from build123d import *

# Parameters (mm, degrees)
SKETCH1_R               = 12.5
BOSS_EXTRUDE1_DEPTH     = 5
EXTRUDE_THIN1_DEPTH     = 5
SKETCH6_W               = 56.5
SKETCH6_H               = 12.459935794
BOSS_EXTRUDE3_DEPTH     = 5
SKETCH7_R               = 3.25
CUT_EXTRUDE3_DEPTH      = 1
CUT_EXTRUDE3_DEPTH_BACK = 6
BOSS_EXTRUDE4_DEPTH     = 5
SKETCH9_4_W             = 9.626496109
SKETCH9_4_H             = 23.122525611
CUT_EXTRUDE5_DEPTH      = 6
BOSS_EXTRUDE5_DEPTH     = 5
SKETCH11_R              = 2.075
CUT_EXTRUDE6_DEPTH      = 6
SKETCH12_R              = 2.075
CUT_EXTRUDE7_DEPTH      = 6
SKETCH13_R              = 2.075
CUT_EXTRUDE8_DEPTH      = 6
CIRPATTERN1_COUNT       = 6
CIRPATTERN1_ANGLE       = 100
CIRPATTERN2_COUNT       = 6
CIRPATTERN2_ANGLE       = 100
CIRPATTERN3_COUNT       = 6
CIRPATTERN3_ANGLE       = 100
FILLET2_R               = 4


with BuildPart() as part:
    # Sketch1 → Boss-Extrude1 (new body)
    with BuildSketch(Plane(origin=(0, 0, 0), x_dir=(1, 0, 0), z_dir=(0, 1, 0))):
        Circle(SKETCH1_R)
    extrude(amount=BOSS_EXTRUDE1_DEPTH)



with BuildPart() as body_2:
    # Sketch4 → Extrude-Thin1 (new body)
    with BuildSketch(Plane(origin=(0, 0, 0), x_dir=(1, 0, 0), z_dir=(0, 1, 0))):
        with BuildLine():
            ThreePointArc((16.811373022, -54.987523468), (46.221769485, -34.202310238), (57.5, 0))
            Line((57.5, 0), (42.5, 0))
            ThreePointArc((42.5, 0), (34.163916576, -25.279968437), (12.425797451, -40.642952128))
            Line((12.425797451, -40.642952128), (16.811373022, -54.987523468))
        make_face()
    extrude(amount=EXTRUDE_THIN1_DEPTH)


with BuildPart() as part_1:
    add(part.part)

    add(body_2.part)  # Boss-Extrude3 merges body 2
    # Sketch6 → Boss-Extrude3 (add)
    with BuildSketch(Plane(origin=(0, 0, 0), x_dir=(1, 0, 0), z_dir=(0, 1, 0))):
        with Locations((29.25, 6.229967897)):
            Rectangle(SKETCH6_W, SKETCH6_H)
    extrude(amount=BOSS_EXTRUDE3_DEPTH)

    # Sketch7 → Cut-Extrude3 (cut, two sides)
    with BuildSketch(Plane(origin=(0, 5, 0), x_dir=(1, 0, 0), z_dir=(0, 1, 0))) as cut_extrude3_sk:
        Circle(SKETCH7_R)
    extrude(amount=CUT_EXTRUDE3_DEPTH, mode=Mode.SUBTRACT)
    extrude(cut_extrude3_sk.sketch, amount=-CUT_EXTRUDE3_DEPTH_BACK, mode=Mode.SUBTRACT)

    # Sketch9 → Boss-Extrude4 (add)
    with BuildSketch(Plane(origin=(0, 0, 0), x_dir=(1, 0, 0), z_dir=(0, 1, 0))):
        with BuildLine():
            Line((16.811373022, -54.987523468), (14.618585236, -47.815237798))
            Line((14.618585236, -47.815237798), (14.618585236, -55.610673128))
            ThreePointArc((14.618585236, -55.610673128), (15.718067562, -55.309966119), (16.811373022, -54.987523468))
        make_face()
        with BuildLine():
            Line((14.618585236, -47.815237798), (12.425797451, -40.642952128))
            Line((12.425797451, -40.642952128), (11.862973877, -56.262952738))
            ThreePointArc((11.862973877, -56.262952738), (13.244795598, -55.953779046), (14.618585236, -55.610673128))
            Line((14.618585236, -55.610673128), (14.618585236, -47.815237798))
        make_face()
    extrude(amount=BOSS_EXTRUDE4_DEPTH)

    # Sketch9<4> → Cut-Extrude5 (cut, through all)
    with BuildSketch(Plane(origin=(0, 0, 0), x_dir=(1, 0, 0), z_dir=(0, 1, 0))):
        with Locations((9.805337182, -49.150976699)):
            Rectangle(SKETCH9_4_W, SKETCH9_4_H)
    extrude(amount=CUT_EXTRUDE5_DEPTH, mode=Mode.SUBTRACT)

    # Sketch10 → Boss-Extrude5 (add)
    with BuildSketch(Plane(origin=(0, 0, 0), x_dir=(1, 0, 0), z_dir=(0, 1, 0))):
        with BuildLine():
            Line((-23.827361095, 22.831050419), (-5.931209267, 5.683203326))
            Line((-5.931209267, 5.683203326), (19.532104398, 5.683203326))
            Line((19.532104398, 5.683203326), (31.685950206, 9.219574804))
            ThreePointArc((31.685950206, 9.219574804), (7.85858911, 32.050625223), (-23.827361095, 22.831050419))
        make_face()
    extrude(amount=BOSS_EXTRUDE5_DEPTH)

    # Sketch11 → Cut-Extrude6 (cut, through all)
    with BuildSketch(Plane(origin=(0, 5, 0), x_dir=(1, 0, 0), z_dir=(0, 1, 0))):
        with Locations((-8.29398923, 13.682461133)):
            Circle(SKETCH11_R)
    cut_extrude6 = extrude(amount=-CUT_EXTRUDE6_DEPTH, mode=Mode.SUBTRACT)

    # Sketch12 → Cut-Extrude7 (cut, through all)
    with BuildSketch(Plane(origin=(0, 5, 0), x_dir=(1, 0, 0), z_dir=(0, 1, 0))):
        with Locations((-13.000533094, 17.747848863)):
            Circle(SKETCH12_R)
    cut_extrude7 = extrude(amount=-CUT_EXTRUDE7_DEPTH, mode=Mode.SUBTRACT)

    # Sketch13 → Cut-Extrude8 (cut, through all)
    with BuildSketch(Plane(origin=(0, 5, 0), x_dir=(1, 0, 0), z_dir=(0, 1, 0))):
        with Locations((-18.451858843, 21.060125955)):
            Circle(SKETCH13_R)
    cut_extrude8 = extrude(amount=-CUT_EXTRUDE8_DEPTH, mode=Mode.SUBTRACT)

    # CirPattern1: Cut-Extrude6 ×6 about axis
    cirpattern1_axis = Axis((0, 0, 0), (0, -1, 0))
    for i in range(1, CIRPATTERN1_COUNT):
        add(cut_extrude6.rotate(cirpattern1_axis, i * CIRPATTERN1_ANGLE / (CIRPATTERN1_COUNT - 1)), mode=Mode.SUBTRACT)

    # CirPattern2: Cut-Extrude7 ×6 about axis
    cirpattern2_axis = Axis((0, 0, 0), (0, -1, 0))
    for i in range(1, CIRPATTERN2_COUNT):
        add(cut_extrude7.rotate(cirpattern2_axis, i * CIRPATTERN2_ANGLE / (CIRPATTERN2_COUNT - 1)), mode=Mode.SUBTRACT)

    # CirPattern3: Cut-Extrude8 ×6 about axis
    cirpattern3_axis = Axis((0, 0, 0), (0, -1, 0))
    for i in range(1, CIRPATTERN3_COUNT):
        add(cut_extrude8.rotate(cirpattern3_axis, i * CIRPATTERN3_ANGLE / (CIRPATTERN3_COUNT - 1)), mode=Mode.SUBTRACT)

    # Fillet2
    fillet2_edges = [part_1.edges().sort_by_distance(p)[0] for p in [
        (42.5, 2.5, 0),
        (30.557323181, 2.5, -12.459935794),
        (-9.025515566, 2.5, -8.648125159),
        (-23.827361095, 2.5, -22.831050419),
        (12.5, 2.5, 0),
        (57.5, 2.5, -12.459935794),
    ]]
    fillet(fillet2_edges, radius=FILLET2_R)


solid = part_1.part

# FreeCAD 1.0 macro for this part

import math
import FreeCAD as App
import Part
import Sketcher
from FreeCAD import Vector
Q = App.Units.Quantity


def edges_at(feature, points):
    """Names of the edges that pass closest to the given points."""
    edges = feature.Shape.Edges
    near = lambda p: min(range(len(edges)), key=lambda i: edges[i].distToShape(Part.Vertex(*p))[0])
    return sorted({f"Edge{near(p) + 1}" for p in points})


def add_polygon(sketch, points):
    """Adds a closed chain of lines whose ends are joined by coincident constraints."""
    first, n = sketch.GeometryCount, len(points)
    for a, b in zip(points, points[1:] + points[:1]):
        sketch.addGeometry(Part.LineSegment(App.Vector(*a, 0), App.Vector(*b, 0)), False)
    for i in range(n):
        sketch.addConstraint(Sketcher.Constraint("Coincident", first + i, 2, first + (i + 1) % n, 1))

doc = App.newDocument("Part")
params = doc.addObject("Spreadsheet::Sheet", "Params")
for row, (alias, value) in enumerate([
    ("sketch1_diameter", "25 mm"),
    ("pad1_length", "5 mm"),
    ("sketch2_radius", "57.5 mm"),
    ("sketch2_radius2", "42.5 mm"),
    ("pad2_length", "5 mm"),
    ("sketch3_width", "56.5 mm"),
    ("pad3_length", "5 mm"),
    ("sketch4_diameter", "6.5 mm"),
    ("sketch5_radius", "57.500002 mm"),
    ("sketch5_length", "7.5 mm"),
    ("pad4_length", "5 mm"),
    ("sketch7_radius", "33 mm"),
    ("pad5_length", "5 mm"),
    ("sketch8_diameter", "4.15 mm"),
    ("sketch9_diameter", "4.15 mm"),
    ("sketch10_diameter", "4.15 mm"),
    ("fillet_radius", "4 mm"),
], start=1):
    params.set(f"A{row}", alias)
    params.set(f"B{row}", "=" + value)
    params.setAlias(f"B{row}", alias)

body = doc.addObject("PartDesign::Body", "Body")

sketch1 = body.newObject("Sketcher::SketchObject", "Sketch")
sketch1.AttachmentSupport = (doc.getObject("XZ_Plane"), [""])
sketch1.MapMode = "FlatFace"
sketch1.addGeometry(Part.Circle(Vector(0, 0, 0), Vector(0, 0, 1), 12), False)
sketch1.addConstraint(Sketcher.Constraint("Coincident", 0, 3, -1, 1))
sketch1.addConstraint(Sketcher.Constraint("Diameter", 0, 25.0))
sketch1.setExpression("Constraints[1]", "Params.sketch1_diameter")
pad1 = body.newObject("PartDesign::Pad", "Pad")
pad1.Profile = sketch1
pad1.setExpression("Length", "Params.pad1_length")
pad1.Reversed = True
body2 = doc.addObject("PartDesign::Body", "Body001")

sketch2 = body2.newObject("Sketcher::SketchObject", "Sketch001")
sketch2.AttachmentSupport = (doc.getObject("XZ_Plane001"), [""])
sketch2.MapMode = "FlatFace"
sketch2.addGeometry(Part.ArcOfCircle(Part.Circle(Vector(0, 0, 0), Vector(0, 0, 1), 58), math.radians(0), math.radians(73)), False)
sketch2.addGeometry(Part.LineSegment(Vector(58, 0, 0), Vector(42, 0, 0)), False)
sketch2.addGeometry(Part.ArcOfCircle(Part.Circle(Vector(0, 0, 0), Vector(0, 0, 1), 42), math.radians(0), math.radians(73)), False)
sketch2.addGeometry(Part.LineSegment(Vector(12, 41, 0), Vector(17, 55, 0)), False)
sketch2.addConstraint(Sketcher.Constraint("Coincident", 0, 1, 1, 1))
sketch2.addConstraint(Sketcher.Constraint("Coincident", 1, 2, 2, 1))
sketch2.addConstraint(Sketcher.Constraint("Coincident", 2, 2, 3, 1))
sketch2.addConstraint(Sketcher.Constraint("Coincident", 3, 2, 0, 2))
sketch2.addConstraint(Sketcher.Constraint("Horizontal", 1))
sketch2.addConstraint(Sketcher.Constraint("Coincident", 0, 3, -1, 1))
sketch2.addConstraint(Sketcher.Constraint("Coincident", 2, 3, -1, 1))
sketch2.addConstraint(Sketcher.Constraint("PointOnObject", 0, 1, -1))
sketch2.addConstraint(Sketcher.Constraint("Radius", 0, 57.5))
sketch2.addConstraint(Sketcher.Constraint("Radius", 2, 42.5))
sketch2.addConstraint(Sketcher.Constraint("Angle", 3, Q("73 deg")))
sketch2.addConstraint(Sketcher.Constraint("DistanceX", -1, 1, 2, 2, 12.425797))
sketch2.setExpression("Constraints[8]", "Params.sketch2_radius")
sketch2.setExpression("Constraints[9]", "Params.sketch2_radius2")
pad2 = body2.newObject("PartDesign::Pad", "Pad001")
pad2.Profile = sketch2
pad2.setExpression("Length", "Params.pad2_length")
pad2.Reversed = True
body.AllowCompound = True
doc.recompute()

boolean = body.newObject("PartDesign::Boolean", "Boolean")
boolean.Type = "Fuse"
boolean.addObjects([body2])

sketch3 = body.newObject("Sketcher::SketchObject", "Sketch002")
sketch3.AttachmentSupport = (doc.getObject("XZ_Plane"), [""])
sketch3.MapMode = "FlatFace"
add_polygon(sketch3, [(1, -12), (1, 0), (58, 0), (58, -12)])
sketch3.addConstraint(Sketcher.Constraint("Vertical", 0))
sketch3.addConstraint(Sketcher.Constraint("Horizontal", 1))
sketch3.addConstraint(Sketcher.Constraint("Vertical", 2))
sketch3.addConstraint(Sketcher.Constraint("Horizontal", 3))
sketch3.addConstraint(Sketcher.Constraint("PointOnObject", 0, 2, -1))
sketch3.addConstraint(Sketcher.Constraint("DistanceX", 1, 1, 1, 2, 56.5))
sketch3.addConstraint(Sketcher.Constraint("DistanceX", -1, 1, 0, 2, 1.0))
sketch3.addConstraint(Sketcher.Constraint("DistanceY", 0, 1, 0, 2, 12.459936))
sketch3.setExpression("Constraints[9]", "Params.sketch3_width")
pad3 = body.newObject("PartDesign::Pad", "Pad002")
pad3.Profile = sketch3
pad3.setExpression("Length", "Params.pad3_length")
pad3.Reversed = True

sketch4 = body.newObject("Sketcher::SketchObject", "Sketch003")
sketch4.AttachmentSupport = (doc.getObject("XZ_Plane"), [""])
sketch4.MapMode = "FlatFace"
sketch4.AttachmentOffset = App.Placement(Vector(0, 0, -5), App.Rotation())
sketch4.addGeometry(Part.Circle(Vector(0, 0, 0), Vector(0, 0, 1), 3.2), False)
sketch4.addConstraint(Sketcher.Constraint("Coincident", 0, 3, -1, 1))
sketch4.addConstraint(Sketcher.Constraint("Diameter", 0, 6.5))
sketch4.setExpression("Constraints[1]", "Params.sketch4_diameter")
pocket1 = body.newObject("PartDesign::Pocket", "Pocket")
pocket1.Profile = sketch4
pocket1.Type = "ThroughAll"
pocket1.Midplane = True

sketch5 = body.newObject("Sketcher::SketchObject", "Sketch004")
sketch5.AttachmentSupport = (doc.getObject("XZ_Plane"), [""])
sketch5.MapMode = "FlatFace"
sketch5.addGeometry(Part.LineSegment(Vector(16.8, 55, 0), Vector(14.6, 47.8, 0)), False)
sketch5.addGeometry(Part.LineSegment(Vector(14.6, 47.8, 0), Vector(12.4, 40.6, 0)), False)
sketch5.addGeometry(Part.LineSegment(Vector(12.4, 40.6, 0), Vector(11.9, 56.3, 0)), False)
sketch5.addGeometry(Part.ArcOfCircle(Part.Circle(Vector(0, 0, 0), Vector(0, 0, 1), 57.5), math.radians(75.27), math.radians(78.09)), False)
sketch5.addGeometry(Part.ArcOfCircle(Part.Circle(Vector(0, 0, 0), Vector(0, 0, 1), 57.5), math.radians(73), math.radians(75.27)), False)
sketch5.addConstraint(Sketcher.Constraint("Coincident", 0, 2, 1, 1))
sketch5.addConstraint(Sketcher.Constraint("Coincident", 1, 2, 2, 1))
sketch5.addConstraint(Sketcher.Constraint("Coincident", 2, 2, 3, 2))
sketch5.addConstraint(Sketcher.Constraint("Tangent", 3, 1, 4, 2))
sketch5.addConstraint(Sketcher.Constraint("Coincident", 4, 1, 0, 1))
sketch5.addConstraint(Sketcher.Constraint("Coincident", 3, 3, -1, 1))
sketch5.addConstraint(Sketcher.Constraint("Equal", 3, 4))
sketch5.addConstraint(Sketcher.Constraint("Parallel", 0, 1))
sketch5.addConstraint(Sketcher.Constraint("Vertical", 0, 2, 3, 1))
sketch5.addConstraint(Sketcher.Constraint("Equal", 0, 1))
sketch5.addConstraint(Sketcher.Constraint("Radius", 3, 57.500002))
sketch5.addConstraint(Sketcher.Constraint("Angle", 0, Q("-107 deg")))
sketch5.addConstraint(Sketcher.Constraint("Distance", 0, 7.5))
sketch5.addConstraint(Sketcher.Constraint("DistanceY", 1, 2, 2, 2, 15.620001))
sketch5.addConstraint(Sketcher.Constraint("DistanceX", 4, 3, 1, 2, 12.425798))
sketch5.setExpression("Constraints[10]", "Params.sketch5_radius")
sketch5.setExpression("Constraints[12]", "Params.sketch5_length")
pad4 = body.newObject("PartDesign::Pad", "Pad003")
pad4.Profile = sketch5
pad4.setExpression("Length", "Params.pad4_length")
pad4.Reversed = True

sketch6 = body.newObject("Sketcher::SketchObject", "Sketch005")
sketch6.AttachmentSupport = (doc.getObject("XZ_Plane"), [""])
sketch6.MapMode = "FlatFace"
add_polygon(sketch6, [(5, 38), (5, 61), (15, 61), (15, 38)])
sketch6.addConstraint(Sketcher.Constraint("Vertical", 0))
sketch6.addConstraint(Sketcher.Constraint("Horizontal", 1))
sketch6.addConstraint(Sketcher.Constraint("Vertical", 2))
sketch6.addConstraint(Sketcher.Constraint("Horizontal", 3))
sketch6.addConstraint(Sketcher.Constraint("DistanceX", 1, 1, 1, 2, 9.626496))
sketch6.addConstraint(Sketcher.Constraint("DistanceY", 0, 1, 0, 2, 23.122526))
sketch6.addConstraint(Sketcher.Constraint("DistanceX", -1, 1, 0, 2, 4.992089))
sketch6.addConstraint(Sketcher.Constraint("DistanceY", -1, 1, 0, 2, 60.71224))
pocket2 = body.newObject("PartDesign::Pocket", "Pocket001")
pocket2.Profile = sketch6
pocket2.Type = "ThroughAll"

sketch7 = body.newObject("Sketcher::SketchObject", "Sketch006")
sketch7.AttachmentSupport = (doc.getObject("XZ_Plane"), [""])
sketch7.MapMode = "FlatFace"
sketch7.addGeometry(Part.LineSegment(Vector(-24, -23, 0), Vector(-6, -6, 0)), False)
sketch7.addGeometry(Part.LineSegment(Vector(-6, -6, 0), Vector(20, -6, 0)), False)
sketch7.addGeometry(Part.LineSegment(Vector(20, -6, 0), Vector(32, -9, 0)), False)
sketch7.addGeometry(Part.ArcOfCircle(Part.Circle(Vector(0, 0, 0), Vector(0, 0, 1), 33), math.radians(-136), math.radians(-16)), False)
sketch7.addConstraint(Sketcher.Constraint("Coincident", 0, 2, 1, 1))
sketch7.addConstraint(Sketcher.Constraint("Coincident", 1, 2, 2, 1))
sketch7.addConstraint(Sketcher.Constraint("Coincident", 2, 2, 3, 2))
sketch7.addConstraint(Sketcher.Constraint("Coincident", 3, 1, 0, 1))
sketch7.addConstraint(Sketcher.Constraint("Horizontal", 1))
sketch7.addConstraint(Sketcher.Constraint("Coincident", 3, 3, -1, 1))
sketch7.addConstraint(Sketcher.Constraint("Radius", 3, 33.0))
sketch7.addConstraint(Sketcher.Constraint("Distance", 2, 12.657879))
sketch7.addConstraint(Sketcher.Constraint("DistanceX", 1, 1, 1, 2, 25.463314))
sketch7.addConstraint(Sketcher.Constraint("DistanceX", 0, 2, -1, 1, 5.931209))
sketch7.addConstraint(Sketcher.Constraint("DistanceX", -1, 1, 2, 2, 31.68595))
sketch7.addConstraint(Sketcher.Constraint("DistanceX", 3, 1, -1, 1, 23.827361))
sketch7.setExpression("Constraints[6]", "Params.sketch7_radius")
pad5 = body.newObject("PartDesign::Pad", "Pad004")
pad5.Profile = sketch7
pad5.setExpression("Length", "Params.pad5_length")
pad5.Reversed = True

sketch8 = body.newObject("Sketcher::SketchObject", "Sketch007")
sketch8.AttachmentSupport = (doc.getObject("XZ_Plane"), [""])
sketch8.MapMode = "FlatFace"
sketch8.AttachmentOffset = App.Placement(Vector(0, 0, -5), App.Rotation())
sketch8.addGeometry(Part.Circle(Vector(-8.3, -13.7, 0), Vector(0, 0, 1), 2.1), False)
sketch8.addConstraint(Sketcher.Constraint("Diameter", 0, 4.15))
sketch8.addConstraint(Sketcher.Constraint("DistanceX", 0, 3, -1, 1, 8.293989))
sketch8.addConstraint(Sketcher.Constraint("DistanceY", 0, 3, -1, 1, 13.682461))
sketch8.setExpression("Constraints[0]", "Params.sketch8_diameter")
pocket3 = body.newObject("PartDesign::Pocket", "Pocket002")
pocket3.Profile = sketch8
pocket3.Type = "ThroughAll"
pocket3.Reversed = True

sketch9 = body.newObject("Sketcher::SketchObject", "Sketch008")
sketch9.AttachmentSupport = (doc.getObject("XZ_Plane"), [""])
sketch9.MapMode = "FlatFace"
sketch9.AttachmentOffset = App.Placement(Vector(0, 0, -5), App.Rotation())
sketch9.addGeometry(Part.Circle(Vector(-13, -17.7, 0), Vector(0, 0, 1), 2.1), False)
sketch9.addConstraint(Sketcher.Constraint("Diameter", 0, 4.15))
sketch9.addConstraint(Sketcher.Constraint("DistanceY", 0, 3, -1, 1, 17.747849))
sketch9.addConstraint(Sketcher.Constraint("DistanceX", 0, 3, -1, 1, 13.000533))
sketch9.setExpression("Constraints[0]", "Params.sketch9_diameter")
pocket4 = body.newObject("PartDesign::Pocket", "Pocket003")
pocket4.Profile = sketch9
pocket4.Type = "ThroughAll"
pocket4.Reversed = True

sketch10 = body.newObject("Sketcher::SketchObject", "Sketch009")
sketch10.AttachmentSupport = (doc.getObject("XZ_Plane"), [""])
sketch10.MapMode = "FlatFace"
sketch10.AttachmentOffset = App.Placement(Vector(0, 0, -5), App.Rotation())
sketch10.addGeometry(Part.Circle(Vector(-18.5, -21.1, 0), Vector(0, 0, 1), 2.1), False)
sketch10.addConstraint(Sketcher.Constraint("Diameter", 0, 4.15))
sketch10.addConstraint(Sketcher.Constraint("DistanceX", 0, 3, -1, 1, 18.451859))
sketch10.addConstraint(Sketcher.Constraint("DistanceY", 0, 3, -1, 1, 21.060126))
sketch10.setExpression("Constraints[0]", "Params.sketch10_diameter")
pocket5 = body.newObject("PartDesign::Pocket", "Pocket004")
pocket5.Profile = sketch10
pocket5.Type = "ThroughAll"
pocket5.Reversed = True
doc.recompute()

polarpattern = body.newObject("PartDesign::PolarPattern", "PolarPattern")
polarpattern.Originals = [pocket3]
polarpattern.Axis = (doc.getObject("Y_Axis"), [""])
polarpattern.Angle = 100
polarpattern.Occurrences = 6
polarpattern.Reversed = True
body.Tip = polarpattern
doc.recompute()

polarpattern2 = body.newObject("PartDesign::PolarPattern", "PolarPattern001")
polarpattern2.Originals = [pocket4]
polarpattern2.Axis = (doc.getObject("Y_Axis"), [""])
polarpattern2.Angle = 100
polarpattern2.Occurrences = 6
polarpattern2.Reversed = True
body.Tip = polarpattern2
doc.recompute()

polarpattern3 = body.newObject("PartDesign::PolarPattern", "PolarPattern002")
polarpattern3.Originals = [pocket5]
polarpattern3.Axis = (doc.getObject("Y_Axis"), [""])
polarpattern3.Angle = 100
polarpattern3.Occurrences = 6
polarpattern3.Reversed = True
body.Tip = polarpattern3
doc.recompute()

fillet = body.newObject("PartDesign::Fillet", "Fillet")
fillet.Base = (polarpattern3, edges_at(polarpattern3, [
    (42.5, 2.5, 0),
    (30.557, 2.5, -12.46),
    (-9.026, 2.5, -8.648),
    (-23.827, 2.5, -22.831),
    (12.5, 2.5, 0),
    (57.5, 2.5, -12.46),
]))
fillet.setExpression("Radius", "Params.fillet_radius")

doc.recompute()
